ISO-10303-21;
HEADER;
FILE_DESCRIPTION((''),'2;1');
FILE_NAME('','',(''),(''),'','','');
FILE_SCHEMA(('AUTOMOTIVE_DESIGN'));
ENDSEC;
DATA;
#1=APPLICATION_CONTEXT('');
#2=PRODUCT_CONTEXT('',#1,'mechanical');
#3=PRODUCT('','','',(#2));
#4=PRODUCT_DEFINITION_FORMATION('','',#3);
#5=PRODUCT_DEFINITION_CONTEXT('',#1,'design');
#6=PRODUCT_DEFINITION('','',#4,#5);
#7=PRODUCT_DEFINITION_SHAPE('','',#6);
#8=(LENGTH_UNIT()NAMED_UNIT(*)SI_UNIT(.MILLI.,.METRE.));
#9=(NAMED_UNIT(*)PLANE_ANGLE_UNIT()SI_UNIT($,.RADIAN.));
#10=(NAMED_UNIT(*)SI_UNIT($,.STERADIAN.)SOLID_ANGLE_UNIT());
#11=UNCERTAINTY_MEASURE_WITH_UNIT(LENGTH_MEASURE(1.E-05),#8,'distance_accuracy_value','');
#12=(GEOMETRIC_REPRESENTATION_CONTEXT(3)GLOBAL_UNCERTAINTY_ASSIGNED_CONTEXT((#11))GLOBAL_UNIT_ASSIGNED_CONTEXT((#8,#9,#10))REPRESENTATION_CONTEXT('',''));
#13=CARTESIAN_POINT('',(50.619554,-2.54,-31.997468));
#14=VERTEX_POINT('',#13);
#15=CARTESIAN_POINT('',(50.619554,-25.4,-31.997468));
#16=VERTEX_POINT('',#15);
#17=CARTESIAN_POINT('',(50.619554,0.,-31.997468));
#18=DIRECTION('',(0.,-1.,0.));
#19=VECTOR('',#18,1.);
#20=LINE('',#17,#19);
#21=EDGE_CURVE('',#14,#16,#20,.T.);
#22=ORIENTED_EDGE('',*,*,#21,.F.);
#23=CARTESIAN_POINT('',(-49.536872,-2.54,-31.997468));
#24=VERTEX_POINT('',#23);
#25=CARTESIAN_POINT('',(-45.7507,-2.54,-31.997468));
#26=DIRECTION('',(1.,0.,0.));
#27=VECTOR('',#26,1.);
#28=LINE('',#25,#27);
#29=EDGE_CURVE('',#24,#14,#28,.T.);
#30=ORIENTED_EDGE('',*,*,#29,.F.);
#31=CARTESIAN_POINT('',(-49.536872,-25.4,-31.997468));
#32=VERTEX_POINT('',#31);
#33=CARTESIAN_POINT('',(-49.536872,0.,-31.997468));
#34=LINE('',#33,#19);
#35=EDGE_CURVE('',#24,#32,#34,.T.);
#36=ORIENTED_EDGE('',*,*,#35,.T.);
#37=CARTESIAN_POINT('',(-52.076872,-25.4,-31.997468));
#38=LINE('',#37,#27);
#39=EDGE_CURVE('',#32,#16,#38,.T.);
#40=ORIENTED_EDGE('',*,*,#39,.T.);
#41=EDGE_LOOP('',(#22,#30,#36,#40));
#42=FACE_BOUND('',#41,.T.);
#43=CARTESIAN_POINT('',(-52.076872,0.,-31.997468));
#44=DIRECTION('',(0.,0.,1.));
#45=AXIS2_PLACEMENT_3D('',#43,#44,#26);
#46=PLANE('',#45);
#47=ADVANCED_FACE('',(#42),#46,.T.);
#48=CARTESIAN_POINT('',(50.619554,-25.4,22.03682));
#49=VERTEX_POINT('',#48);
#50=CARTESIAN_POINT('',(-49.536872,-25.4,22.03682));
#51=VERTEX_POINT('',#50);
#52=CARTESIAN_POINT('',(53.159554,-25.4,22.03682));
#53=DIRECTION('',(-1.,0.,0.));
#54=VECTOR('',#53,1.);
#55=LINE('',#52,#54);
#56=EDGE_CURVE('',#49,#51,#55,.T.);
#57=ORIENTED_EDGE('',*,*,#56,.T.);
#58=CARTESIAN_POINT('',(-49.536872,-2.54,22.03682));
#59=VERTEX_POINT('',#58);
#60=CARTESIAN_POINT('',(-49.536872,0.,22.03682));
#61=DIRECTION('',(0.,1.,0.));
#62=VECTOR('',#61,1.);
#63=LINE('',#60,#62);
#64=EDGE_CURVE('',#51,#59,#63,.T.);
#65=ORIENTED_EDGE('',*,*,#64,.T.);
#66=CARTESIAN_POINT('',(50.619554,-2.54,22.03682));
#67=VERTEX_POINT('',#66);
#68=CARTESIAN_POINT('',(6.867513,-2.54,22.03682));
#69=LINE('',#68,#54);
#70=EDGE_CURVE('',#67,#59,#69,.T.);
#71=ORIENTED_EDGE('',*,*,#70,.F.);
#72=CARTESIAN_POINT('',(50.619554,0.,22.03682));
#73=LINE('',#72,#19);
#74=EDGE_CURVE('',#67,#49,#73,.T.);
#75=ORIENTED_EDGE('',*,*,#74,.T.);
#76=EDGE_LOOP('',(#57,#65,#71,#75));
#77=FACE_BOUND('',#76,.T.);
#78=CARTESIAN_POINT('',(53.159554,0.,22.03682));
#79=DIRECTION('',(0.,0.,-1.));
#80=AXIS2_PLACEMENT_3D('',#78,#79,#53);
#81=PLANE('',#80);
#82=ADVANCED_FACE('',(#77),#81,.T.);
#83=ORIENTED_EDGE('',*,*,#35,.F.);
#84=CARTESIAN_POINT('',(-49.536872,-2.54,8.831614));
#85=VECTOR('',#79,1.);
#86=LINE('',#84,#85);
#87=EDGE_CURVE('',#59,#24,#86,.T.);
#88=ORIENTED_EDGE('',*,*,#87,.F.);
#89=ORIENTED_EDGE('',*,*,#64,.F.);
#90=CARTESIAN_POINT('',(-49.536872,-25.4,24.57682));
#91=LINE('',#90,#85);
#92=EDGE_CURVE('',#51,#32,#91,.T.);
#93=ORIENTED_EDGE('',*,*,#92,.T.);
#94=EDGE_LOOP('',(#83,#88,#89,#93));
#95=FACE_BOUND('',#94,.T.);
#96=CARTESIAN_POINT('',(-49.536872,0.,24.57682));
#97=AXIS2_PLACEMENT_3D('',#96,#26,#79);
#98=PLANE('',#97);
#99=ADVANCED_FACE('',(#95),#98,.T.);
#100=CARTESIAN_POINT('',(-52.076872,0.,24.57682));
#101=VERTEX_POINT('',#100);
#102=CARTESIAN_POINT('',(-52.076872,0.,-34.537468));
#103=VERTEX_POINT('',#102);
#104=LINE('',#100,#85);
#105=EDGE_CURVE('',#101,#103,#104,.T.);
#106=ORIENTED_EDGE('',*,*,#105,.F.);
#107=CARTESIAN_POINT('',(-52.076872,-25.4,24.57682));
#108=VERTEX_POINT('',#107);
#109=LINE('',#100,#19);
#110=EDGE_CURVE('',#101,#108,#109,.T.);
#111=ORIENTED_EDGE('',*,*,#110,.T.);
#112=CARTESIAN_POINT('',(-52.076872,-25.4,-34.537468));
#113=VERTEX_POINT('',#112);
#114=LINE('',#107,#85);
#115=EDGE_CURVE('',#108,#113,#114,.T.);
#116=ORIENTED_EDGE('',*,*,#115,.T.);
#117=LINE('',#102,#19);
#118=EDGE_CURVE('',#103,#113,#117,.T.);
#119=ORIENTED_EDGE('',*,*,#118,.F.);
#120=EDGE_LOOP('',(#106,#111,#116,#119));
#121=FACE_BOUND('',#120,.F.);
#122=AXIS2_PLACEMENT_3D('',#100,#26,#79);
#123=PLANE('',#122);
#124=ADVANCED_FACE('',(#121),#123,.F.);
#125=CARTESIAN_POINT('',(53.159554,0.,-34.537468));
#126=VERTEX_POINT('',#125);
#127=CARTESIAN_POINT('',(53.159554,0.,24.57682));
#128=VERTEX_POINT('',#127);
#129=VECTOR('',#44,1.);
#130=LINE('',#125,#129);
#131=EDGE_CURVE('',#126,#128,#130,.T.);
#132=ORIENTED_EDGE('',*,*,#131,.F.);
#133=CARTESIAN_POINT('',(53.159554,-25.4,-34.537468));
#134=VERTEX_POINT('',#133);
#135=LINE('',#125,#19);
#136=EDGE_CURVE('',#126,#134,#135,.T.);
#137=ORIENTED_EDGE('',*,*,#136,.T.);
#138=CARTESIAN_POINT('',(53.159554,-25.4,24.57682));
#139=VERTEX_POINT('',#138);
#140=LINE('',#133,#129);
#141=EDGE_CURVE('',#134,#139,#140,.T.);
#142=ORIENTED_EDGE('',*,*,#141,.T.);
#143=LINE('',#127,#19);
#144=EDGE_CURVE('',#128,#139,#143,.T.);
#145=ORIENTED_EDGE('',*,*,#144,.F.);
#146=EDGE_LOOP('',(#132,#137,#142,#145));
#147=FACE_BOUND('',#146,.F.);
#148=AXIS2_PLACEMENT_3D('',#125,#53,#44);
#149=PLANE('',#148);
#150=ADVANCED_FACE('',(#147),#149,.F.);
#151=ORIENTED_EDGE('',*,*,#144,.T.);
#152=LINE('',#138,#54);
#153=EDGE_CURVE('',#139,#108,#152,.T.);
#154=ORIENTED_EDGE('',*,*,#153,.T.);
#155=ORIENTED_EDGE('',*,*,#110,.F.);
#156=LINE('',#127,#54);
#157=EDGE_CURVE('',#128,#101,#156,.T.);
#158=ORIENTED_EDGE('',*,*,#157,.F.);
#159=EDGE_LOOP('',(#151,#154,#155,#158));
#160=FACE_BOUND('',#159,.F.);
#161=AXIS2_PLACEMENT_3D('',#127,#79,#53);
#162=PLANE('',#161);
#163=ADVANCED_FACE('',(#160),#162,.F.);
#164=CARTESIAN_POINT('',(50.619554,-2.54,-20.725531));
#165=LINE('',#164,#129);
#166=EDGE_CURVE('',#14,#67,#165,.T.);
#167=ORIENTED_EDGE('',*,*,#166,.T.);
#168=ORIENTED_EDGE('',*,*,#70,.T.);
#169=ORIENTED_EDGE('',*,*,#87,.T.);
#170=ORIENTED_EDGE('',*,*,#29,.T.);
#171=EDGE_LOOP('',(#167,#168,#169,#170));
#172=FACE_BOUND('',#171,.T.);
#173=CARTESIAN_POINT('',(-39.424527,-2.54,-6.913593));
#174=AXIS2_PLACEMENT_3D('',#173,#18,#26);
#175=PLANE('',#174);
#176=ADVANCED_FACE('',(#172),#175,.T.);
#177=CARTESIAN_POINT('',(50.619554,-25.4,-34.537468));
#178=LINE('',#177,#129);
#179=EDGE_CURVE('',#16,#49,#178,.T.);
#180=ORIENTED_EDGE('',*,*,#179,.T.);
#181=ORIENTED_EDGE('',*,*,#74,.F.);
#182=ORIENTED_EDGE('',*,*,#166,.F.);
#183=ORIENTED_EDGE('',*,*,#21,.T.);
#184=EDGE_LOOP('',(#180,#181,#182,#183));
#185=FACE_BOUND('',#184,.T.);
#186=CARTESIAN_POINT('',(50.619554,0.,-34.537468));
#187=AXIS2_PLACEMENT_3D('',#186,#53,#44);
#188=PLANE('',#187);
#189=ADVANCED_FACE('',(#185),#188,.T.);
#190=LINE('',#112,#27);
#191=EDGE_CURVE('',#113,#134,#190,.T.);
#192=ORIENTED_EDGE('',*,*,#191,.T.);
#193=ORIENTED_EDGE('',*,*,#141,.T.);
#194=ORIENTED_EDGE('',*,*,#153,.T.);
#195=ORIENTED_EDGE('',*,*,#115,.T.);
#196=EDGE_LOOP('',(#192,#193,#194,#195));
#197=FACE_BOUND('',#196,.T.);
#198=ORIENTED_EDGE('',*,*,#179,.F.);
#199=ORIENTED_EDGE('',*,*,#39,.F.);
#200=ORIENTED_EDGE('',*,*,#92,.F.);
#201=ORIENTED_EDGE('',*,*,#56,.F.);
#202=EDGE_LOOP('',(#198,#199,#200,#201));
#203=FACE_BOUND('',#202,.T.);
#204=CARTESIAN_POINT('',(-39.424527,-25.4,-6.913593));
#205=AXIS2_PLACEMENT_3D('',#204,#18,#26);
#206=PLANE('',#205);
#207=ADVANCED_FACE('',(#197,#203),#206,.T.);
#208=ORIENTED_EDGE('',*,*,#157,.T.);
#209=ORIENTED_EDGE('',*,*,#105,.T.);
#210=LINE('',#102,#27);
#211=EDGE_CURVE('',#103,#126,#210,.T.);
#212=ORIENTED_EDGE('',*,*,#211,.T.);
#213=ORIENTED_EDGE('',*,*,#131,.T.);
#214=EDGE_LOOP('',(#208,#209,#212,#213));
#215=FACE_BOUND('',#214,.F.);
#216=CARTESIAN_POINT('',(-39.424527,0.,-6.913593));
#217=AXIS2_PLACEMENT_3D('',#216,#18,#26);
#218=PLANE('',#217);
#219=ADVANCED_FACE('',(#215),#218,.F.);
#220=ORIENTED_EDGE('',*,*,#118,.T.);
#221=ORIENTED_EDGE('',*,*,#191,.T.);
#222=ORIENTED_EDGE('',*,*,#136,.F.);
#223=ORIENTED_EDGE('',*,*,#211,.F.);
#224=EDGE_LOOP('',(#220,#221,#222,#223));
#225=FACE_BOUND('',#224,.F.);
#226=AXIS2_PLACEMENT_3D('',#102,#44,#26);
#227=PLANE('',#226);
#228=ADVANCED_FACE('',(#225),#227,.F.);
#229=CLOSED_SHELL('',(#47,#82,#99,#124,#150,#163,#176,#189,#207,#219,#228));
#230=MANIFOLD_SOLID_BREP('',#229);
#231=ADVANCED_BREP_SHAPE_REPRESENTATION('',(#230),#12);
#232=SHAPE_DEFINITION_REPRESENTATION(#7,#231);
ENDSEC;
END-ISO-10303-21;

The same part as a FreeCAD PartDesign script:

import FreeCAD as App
import Part
import Sketcher
from FreeCAD import Vector
Q = App.Units.Quantity


def faces_at(feature, points):
    """Names of the faces that lie closest to the given points."""
    faces = feature.Shape.Faces
    near = lambda p: min(range(len(faces)), key=lambda i: faces[i].distToShape(Part.Vertex(*p))[0])
    return sorted({f"Face{near(p) + 1}" for p in points})


def add_polygon(sketch, points):
    """Adds a closed chain of lines whose ends are joined by coincident constraints."""
    first, n = sketch.GeometryCount, len(points)
    for a, b in zip(points, points[1:] + points[:1]):
        sketch.addGeometry(Part.LineSegment(App.Vector(*a, 0), App.Vector(*b, 0)), False)
    for i in range(n):
        sketch.addConstraint(Sketcher.Constraint("Coincident", first + i, 2, first + (i + 1) % n, 1))

doc = App.newDocument("Part")
body = doc.addObject("PartDesign::Body", "Body")

sketch1 = body.newObject("Sketcher::SketchObject", "Sketch")
sketch1.AttachmentSupport = (doc.getObject("XZ_Plane"), [""])
sketch1.MapMode = "FlatFace"
add_polygon(sketch1, [(-52.076872, 24.57682), (-52.076872, -34.537468), (53.159554, -34.537468), (53.159554, 24.57682)])
sketch1.addConstraint([
    Sketcher.Constraint("Vertical", 0),
    Sketcher.Constraint("Horizontal", 1),
    Sketcher.Constraint("Vertical", 2),
    Sketcher.Constraint("Horizontal", 3),
    Sketcher.Constraint("DistanceY", 0, 2, 0, 1, Q("59.114289 mm")),
    Sketcher.Constraint("DistanceX", 1, 1, 1, 2, Q("105.236426 mm")),
    Sketcher.Constraint("DistanceY", 0, 2, -1, 1, Q("34.537468 mm")),
    Sketcher.Constraint("DistanceX", 0, 2, -1, 1, Q("52.076872 mm")),
])
pad1 = body.newObject("PartDesign::Pad", "Pad")
pad1.Profile = sketch1
pad1.Length = Q("1 in")
doc.recompute()

thickness = body.newObject("PartDesign::Thickness", "Thickness")
thickness.Base = (pad1, faces_at(pad1, [(0.541, -25.4, -4.98)]))
thickness.Value = Q("0.1 in")
thickness.Reversed = True
thickness.Join = "Arc"

doc.recompute()
